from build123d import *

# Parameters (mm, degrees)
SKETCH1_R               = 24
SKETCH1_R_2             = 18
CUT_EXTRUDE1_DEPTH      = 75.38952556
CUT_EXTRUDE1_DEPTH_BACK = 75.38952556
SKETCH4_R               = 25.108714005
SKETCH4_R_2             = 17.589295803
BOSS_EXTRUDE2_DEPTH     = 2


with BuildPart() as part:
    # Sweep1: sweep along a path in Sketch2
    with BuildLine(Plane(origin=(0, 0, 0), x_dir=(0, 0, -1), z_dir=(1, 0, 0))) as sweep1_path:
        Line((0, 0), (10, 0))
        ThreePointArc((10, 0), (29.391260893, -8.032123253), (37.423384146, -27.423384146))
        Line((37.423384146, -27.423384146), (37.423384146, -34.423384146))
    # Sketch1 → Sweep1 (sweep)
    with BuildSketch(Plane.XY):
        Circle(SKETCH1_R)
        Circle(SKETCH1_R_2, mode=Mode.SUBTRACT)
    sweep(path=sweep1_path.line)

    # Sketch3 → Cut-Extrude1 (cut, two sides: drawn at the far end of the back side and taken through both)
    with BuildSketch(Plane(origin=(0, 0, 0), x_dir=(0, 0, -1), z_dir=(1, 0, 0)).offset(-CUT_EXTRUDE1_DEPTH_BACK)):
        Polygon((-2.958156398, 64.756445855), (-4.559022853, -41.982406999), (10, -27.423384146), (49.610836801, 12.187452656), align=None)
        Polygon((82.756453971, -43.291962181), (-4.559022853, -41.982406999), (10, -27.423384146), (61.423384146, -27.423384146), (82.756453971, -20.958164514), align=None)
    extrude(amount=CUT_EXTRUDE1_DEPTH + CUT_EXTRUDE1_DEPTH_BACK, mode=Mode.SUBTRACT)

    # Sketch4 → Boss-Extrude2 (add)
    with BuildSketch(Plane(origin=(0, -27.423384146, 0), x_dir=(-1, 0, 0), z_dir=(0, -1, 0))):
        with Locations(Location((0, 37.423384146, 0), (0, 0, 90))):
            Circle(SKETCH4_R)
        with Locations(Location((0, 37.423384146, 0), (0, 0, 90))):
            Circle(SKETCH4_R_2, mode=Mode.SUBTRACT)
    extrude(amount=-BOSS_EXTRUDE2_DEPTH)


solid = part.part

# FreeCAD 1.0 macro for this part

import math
import FreeCAD as App
import Part
import Sketcher

V = App.Vector
Q = App.Units.Quantity


def add_polygon(sketch, points):
    """Adds a closed chain of lines whose ends are joined by coincident constraints."""
    first, n = sketch.GeometryCount, len(points)
    for a, b in zip(points, points[1:] + points[:1]):
        sketch.addGeometry(Part.LineSegment(App.Vector(*a, 0), App.Vector(*b, 0)), False)
    for i in range(n):
        sketch.addConstraint(Sketcher.Constraint("Coincident", first + i, 2, first + (i + 1) % n, 1))

doc = App.newDocument("Part")
body = doc.addObject("PartDesign::Body", "Body")

sketch1 = body.newObject("Sketcher::SketchObject", "Sketch")
sketch1.AttachmentSupport = (doc.getObject("XY_Plane"), [""])
sketch1.MapMode = "FlatFace"
sketch1.addGeometry([
    Part.Circle(V(0, 0, 0), V(0, 0, 1), 24),
    Part.Circle(V(0, 0, 0), V(0, 0, 1), 18),
], False)
sketch1.addConstraint([
    Sketcher.Constraint("Coincident", 0, 3, -1, 1),
    Sketcher.Constraint("Coincident", 1, 3, -1, 1),
    Sketcher.Constraint("Diameter", 0, 48.0),
    Sketcher.Constraint("Diameter", 1, 36.0),
])

sketch2 = body.newObject("Sketcher::SketchObject", "Sketch001")
sketch2.AttachmentSupport = (doc.getObject("YZ_Plane"), [""])
sketch2.MapMode = "FlatFace"
sketch2.addGeometry([
    Part.LineSegment(V(0, 0, 0), V(0, -10, 0)),
    Part.ArcOfCircle(Part.Circle(V(-27.423384, -10, 0), V(0, 0, 1), 27.423384), math.radians(-90), math.radians(0)),
    Part.LineSegment(V(-27.423384, -37.423384, 0), V(-34.423384, -37.423384, 0)),
], False)
sketch2.addConstraint([
    Sketcher.Constraint("Tangent", 0, 2, 1, 2),
    Sketcher.Constraint("Tangent", 1, 1, 2, 1),
    Sketcher.Constraint("Vertical", 0),
    Sketcher.Constraint("Horizontal", 2),
    Sketcher.Constraint("Coincident", 0, 1, -1, 1),
    Sketcher.Constraint("DistanceX", 2, 2, 2, 1, 7.0),
    Sketcher.Constraint("DistanceY", 0, 2, 0, 1, 10.0),
    Sketcher.Constraint("Radius", 1, 27.423384),
])
doc.recompute()

additivepipe = body.newObject("PartDesign::AdditivePipe", "AdditivePipe")
additivepipe.Profile = sketch1
additivepipe.Spine = (sketch2, ["Edge1", "Edge2", "Edge3"])

sketch3 = body.newObject("Sketcher::SketchObject", "Sketch002")
sketch3.AttachmentSupport = (doc.getObject("YZ_Plane"), [""])
sketch3.MapMode = "FlatFace"
add_polygon(sketch3, [(64.756446, 2.958156), (-41.982407, 4.559023), (-43.291962, -82.756454), (-20.958165, -82.756454), (-27.423384, -61.423384), (-27.423384, -10), (12.187453, -49.610837)])
sketch3.addConstraint([
    Sketcher.Constraint("Horizontal", 2),
    Sketcher.Constraint("Vertical", 4),
    Sketcher.Constraint("Perpendicular", 0, 1),
    Sketcher.Constraint("Perpendicular", 5, 6),
    Sketcher.Constraint("Angle", 5, Q("-45 deg")),
    Sketcher.Constraint("DistanceY", 4, 2, -1, 1, 10.0),
    Sketcher.Constraint("Angle", 3, Q("106.860005 deg")),
    Sketcher.Constraint("Distance", 3, 22.29123),
    Sketcher.Constraint("DistanceX", 2, 1, 2, 2, 22.333798),
    Sketcher.Constraint("DistanceY", 4, 1, 4, 2, 51.423384),
    Sketcher.Constraint("DistanceX", 0, 2, 5, 2, 54.16986),
    Sketcher.Constraint("DistanceY", 5, 2, 0, 2, 54.16986),
    Sketcher.Constraint("DistanceX", 4, 2, 6, 2, 92.17983),
    Sketcher.Constraint("DistanceX", 0, 2, -1, 1, 41.982407),
])
pocket1 = body.newObject("PartDesign::Pocket", "Pocket")
pocket1.Profile = sketch3
pocket1.Type = "ThroughAll"
pocket1.Midplane = True

sketch4 = body.newObject("Sketcher::SketchObject", "Sketch003")
sketch4.AttachmentSupport = (doc.getObject("XZ_Plane"), [""])
sketch4.MapMode = "FlatFace"
sketch4.AttachmentOffset = App.Placement(V(0, 0, 27.423384), App.Rotation())
sketch4.addGeometry([
    Part.Circle(V(0, -37.423384, 0), V(0, 0, 1), 25.108714),
    Part.Circle(V(0, -37.423384, 0), V(0, 0, 1), 17.589296),
], False)
sketch4.addConstraint([
    Sketcher.Constraint("Coincident", 1, 3, 0, 3),
    Sketcher.Constraint("PointOnObject", 0, 3, -2),
    Sketcher.Constraint("Diameter", 0, 50.217428),
    Sketcher.Constraint("Diameter", 1, 35.178592),
    Sketcher.Constraint("DistanceY", 0, 3, -1, 1, 37.423384),
])
pad1 = body.newObject("PartDesign::Pad", "Pad")
pad1.Profile = sketch4
pad1.Length = 2
pad1.Reversed = True

doc.recompute()
